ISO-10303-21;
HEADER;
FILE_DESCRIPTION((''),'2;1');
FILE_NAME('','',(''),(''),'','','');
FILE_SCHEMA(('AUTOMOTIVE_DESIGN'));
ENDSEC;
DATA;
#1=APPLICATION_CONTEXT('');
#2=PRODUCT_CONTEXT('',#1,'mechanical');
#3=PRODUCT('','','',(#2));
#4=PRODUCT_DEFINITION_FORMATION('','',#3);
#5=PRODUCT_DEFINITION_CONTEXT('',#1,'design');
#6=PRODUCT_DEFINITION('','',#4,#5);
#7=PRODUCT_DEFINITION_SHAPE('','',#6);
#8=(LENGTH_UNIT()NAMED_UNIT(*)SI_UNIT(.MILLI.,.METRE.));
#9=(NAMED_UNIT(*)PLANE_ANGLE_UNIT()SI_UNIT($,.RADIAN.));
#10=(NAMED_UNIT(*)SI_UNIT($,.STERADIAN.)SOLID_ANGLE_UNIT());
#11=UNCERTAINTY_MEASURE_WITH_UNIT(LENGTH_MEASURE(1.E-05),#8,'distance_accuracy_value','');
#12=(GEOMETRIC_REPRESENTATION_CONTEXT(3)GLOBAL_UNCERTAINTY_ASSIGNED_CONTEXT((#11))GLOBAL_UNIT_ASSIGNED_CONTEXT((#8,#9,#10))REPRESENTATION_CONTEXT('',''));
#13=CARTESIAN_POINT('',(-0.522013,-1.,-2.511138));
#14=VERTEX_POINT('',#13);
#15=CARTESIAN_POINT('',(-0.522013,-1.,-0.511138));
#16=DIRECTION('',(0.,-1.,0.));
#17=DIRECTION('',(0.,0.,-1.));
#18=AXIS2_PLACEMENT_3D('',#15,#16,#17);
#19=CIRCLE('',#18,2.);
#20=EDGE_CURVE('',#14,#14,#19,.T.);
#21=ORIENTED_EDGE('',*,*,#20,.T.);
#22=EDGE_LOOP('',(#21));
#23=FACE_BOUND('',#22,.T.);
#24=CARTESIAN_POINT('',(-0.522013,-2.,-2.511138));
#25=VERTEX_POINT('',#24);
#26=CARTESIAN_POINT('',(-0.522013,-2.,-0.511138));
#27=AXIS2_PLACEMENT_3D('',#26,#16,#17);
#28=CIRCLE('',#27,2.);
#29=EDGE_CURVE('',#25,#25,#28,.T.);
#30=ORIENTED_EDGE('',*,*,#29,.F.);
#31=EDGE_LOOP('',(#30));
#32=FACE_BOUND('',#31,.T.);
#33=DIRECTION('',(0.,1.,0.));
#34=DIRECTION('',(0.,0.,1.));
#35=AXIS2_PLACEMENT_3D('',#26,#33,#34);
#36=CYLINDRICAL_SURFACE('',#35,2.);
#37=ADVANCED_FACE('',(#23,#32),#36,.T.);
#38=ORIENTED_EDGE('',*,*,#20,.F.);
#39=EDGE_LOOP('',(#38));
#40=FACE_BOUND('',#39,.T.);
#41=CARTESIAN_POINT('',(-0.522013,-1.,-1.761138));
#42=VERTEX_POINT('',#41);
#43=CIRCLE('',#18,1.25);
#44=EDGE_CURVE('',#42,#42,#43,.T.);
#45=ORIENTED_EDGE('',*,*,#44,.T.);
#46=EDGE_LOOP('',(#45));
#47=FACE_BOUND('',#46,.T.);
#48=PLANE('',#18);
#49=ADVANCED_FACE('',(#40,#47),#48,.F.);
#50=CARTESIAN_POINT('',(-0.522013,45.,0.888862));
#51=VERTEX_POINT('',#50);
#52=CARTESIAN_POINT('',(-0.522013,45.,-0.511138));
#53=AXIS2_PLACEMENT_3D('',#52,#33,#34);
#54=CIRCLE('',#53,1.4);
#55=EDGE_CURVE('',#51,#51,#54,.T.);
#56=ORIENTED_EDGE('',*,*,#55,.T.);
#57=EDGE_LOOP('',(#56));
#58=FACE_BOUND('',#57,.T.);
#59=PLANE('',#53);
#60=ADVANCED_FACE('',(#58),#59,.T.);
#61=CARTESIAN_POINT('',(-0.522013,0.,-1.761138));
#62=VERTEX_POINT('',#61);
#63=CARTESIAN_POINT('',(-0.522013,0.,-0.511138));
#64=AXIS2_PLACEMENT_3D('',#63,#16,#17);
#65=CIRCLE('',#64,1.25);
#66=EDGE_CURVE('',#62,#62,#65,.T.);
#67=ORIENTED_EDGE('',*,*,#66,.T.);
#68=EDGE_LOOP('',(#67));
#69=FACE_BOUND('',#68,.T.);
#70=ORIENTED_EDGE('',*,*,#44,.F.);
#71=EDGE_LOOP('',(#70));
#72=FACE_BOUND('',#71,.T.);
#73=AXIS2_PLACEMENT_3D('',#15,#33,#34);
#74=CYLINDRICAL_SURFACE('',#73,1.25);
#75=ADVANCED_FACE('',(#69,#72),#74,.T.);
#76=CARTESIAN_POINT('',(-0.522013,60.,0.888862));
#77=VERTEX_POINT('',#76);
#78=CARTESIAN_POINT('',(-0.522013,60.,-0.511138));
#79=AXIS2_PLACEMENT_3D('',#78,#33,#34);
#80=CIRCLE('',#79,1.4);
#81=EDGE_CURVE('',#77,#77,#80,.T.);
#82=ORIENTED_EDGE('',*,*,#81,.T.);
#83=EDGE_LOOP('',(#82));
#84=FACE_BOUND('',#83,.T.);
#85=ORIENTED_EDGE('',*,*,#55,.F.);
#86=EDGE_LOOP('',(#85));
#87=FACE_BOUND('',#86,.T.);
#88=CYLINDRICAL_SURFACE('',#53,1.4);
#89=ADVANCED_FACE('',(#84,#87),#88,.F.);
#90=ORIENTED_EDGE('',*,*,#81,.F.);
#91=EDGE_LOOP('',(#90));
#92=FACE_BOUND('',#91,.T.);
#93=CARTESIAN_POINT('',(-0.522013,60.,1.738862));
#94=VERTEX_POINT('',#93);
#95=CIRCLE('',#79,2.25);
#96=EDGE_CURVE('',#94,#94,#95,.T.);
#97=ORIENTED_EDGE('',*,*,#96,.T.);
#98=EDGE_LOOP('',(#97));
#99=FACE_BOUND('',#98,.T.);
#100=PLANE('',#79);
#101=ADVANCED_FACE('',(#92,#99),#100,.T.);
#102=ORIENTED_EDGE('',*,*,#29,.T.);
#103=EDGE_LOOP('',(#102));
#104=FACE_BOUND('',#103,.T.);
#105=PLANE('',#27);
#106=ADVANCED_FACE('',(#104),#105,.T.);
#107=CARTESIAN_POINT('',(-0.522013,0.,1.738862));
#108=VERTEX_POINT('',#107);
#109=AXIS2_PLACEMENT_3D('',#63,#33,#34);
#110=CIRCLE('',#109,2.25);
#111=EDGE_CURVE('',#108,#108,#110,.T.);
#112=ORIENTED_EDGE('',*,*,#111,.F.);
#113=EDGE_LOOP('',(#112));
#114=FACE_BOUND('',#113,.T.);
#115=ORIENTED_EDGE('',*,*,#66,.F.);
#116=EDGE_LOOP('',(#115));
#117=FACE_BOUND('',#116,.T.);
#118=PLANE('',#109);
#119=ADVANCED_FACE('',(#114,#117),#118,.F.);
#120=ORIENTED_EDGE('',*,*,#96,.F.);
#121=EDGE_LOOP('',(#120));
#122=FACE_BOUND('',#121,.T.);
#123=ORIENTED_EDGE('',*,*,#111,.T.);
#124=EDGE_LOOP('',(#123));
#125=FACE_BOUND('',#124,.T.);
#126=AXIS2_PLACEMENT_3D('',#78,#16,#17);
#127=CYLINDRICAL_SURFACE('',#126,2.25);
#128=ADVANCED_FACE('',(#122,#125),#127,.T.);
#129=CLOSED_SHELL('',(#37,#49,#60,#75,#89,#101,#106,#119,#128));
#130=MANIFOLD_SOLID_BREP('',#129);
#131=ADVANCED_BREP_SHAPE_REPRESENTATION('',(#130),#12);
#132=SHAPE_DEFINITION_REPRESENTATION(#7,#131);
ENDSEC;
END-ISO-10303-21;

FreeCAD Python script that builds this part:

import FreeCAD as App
import Part
import Sketcher
Q = App.Units.Quantity

doc = App.newDocument("Part")
body = doc.addObject("PartDesign::Body", "Body")

sketch1 = doc.addObject("Sketcher::SketchObject", "Sketch")
body.addObject(sketch1)
sketch1.AttachmentSupport = (doc.XZ_Plane, [""])
sketch1.MapMode = "FlatFace"
sketch1.addGeometry(Part.Circle(App.Vector(-0.522013, -0.511138, 0), App.Vector(0, 0, 1), 2.25), False)
sketch1.addConstraint([
    Sketcher.Constraint("Diameter", 0, Q("4.5 mm")),
    Sketcher.Constraint("DistanceY", 0, 3, -1, 1, Q("0.511138 mm")),
    Sketcher.Constraint("DistanceX", 0, 3, -1, 1, Q("0.522013 mm")),
])
pad1 = doc.addObject("PartDesign::Pad", "Pad")
body.addObject(pad1)
pad1.Profile = sketch1
pad1.Length = 60
pad1.Reversed = True

sketch2 = doc.addObject("Sketcher::SketchObject", "Sketch001")
body.addObject(sketch2)
sketch2.AttachmentSupport = (doc.XZ_Plane, [""])
sketch2.MapMode = "FlatFace"
sketch2.addGeometry(Part.Circle(App.Vector(-0.522013, -0.511138, 0), App.Vector(0, 0, 1), 1.375), False)
sketch2.addConstraint([
    Sketcher.Constraint("Diameter", 0, Q("2.75 mm")),
    Sketcher.Constraint("DistanceY", 0, 3, -1, 1, Q("0.511138 mm")),
    Sketcher.Constraint("DistanceX", 0, 3, -1, 1, Q("0.522013 mm")),
])
pad2 = doc.addObject("PartDesign::Pad", "Pad001")
body.addObject(pad2)
pad2.Profile = sketch2
pad2.Length = 1
pad2.Reversed = True

sketch3 = doc.addObject("Sketcher::SketchObject", "Sketch002")
body.addObject(sketch3)
sketch3.AttachmentSupport = (doc.XZ_Plane, [""])
sketch3.MapMode = "FlatFace"
sketch3.addGeometry(Part.Circle(App.Vector(-0.522013, -0.511138, 0), App.Vector(0, 0, 1), 1.25), False)
sketch3.addConstraint([
    Sketcher.Constraint("Diameter", 0, Q("2.5 mm")),
    Sketcher.Constraint("DistanceY", 0, 3, -1, 1, Q("0.511138 mm")),
    Sketcher.Constraint("DistanceX", 0, 3, -1, 1, Q("0.522013 mm")),
])
pad3 = doc.addObject("PartDesign::Pad", "Pad002")
body.addObject(pad3)
pad3.Profile = sketch3
pad3.Length = 1

sketch4 = doc.addObject("Sketcher::SketchObject", "Sketch003")
body.addObject(sketch4)
sketch4.AttachmentSupport = (doc.XZ_Plane, [""])
sketch4.MapMode = "FlatFace"
sketch4.AttachmentOffset = App.Placement(App.Vector(0, 0, 1), App.Rotation())
sketch4.addGeometry(Part.Circle(App.Vector(-0.522013, -0.511138, 0), App.Vector(0, 0, 1), 2), False)
sketch4.addConstraint([
    Sketcher.Constraint("Diameter", 0, Q("4 mm")),
    Sketcher.Constraint("DistanceY", 0, 3, -1, 1, Q("0.511138 mm")),
    Sketcher.Constraint("DistanceX", 0, 3, -1, 1, Q("0.522013 mm")),
])
pad4 = doc.addObject("PartDesign::Pad", "Pad003")
body.addObject(pad4)
pad4.Profile = sketch4
pad4.Length = 1

sketch5 = doc.addObject("Sketcher::SketchObject", "Sketch004")
body.addObject(sketch5)
sketch5.AttachmentSupport = (doc.XZ_Plane, [""])
sketch5.MapMode = "FlatFace"
sketch5.AttachmentOffset = App.Placement(App.Vector(0, 0, -60), App.Rotation())
sketch5.addGeometry(Part.Circle(App.Vector(-0.522013, -0.511138, 0), App.Vector(0, 0, 1), 1.4), False)
sketch5.addConstraint([
    Sketcher.Constraint("Diameter", 0, Q("2.8 mm")),
    Sketcher.Constraint("DistanceY", 0, 3, -1, 1, Q("0.511138 mm")),
    Sketcher.Constraint("DistanceX", 0, 3, -1, 1, Q("0.522013 mm")),
])
pocket1 = doc.addObject("PartDesign::Pocket", "Pocket")
body.addObject(pocket1)
pocket1.Profile = sketch5
pocket1.Length = 15
pocket1.Reversed = True

doc.recompute()
